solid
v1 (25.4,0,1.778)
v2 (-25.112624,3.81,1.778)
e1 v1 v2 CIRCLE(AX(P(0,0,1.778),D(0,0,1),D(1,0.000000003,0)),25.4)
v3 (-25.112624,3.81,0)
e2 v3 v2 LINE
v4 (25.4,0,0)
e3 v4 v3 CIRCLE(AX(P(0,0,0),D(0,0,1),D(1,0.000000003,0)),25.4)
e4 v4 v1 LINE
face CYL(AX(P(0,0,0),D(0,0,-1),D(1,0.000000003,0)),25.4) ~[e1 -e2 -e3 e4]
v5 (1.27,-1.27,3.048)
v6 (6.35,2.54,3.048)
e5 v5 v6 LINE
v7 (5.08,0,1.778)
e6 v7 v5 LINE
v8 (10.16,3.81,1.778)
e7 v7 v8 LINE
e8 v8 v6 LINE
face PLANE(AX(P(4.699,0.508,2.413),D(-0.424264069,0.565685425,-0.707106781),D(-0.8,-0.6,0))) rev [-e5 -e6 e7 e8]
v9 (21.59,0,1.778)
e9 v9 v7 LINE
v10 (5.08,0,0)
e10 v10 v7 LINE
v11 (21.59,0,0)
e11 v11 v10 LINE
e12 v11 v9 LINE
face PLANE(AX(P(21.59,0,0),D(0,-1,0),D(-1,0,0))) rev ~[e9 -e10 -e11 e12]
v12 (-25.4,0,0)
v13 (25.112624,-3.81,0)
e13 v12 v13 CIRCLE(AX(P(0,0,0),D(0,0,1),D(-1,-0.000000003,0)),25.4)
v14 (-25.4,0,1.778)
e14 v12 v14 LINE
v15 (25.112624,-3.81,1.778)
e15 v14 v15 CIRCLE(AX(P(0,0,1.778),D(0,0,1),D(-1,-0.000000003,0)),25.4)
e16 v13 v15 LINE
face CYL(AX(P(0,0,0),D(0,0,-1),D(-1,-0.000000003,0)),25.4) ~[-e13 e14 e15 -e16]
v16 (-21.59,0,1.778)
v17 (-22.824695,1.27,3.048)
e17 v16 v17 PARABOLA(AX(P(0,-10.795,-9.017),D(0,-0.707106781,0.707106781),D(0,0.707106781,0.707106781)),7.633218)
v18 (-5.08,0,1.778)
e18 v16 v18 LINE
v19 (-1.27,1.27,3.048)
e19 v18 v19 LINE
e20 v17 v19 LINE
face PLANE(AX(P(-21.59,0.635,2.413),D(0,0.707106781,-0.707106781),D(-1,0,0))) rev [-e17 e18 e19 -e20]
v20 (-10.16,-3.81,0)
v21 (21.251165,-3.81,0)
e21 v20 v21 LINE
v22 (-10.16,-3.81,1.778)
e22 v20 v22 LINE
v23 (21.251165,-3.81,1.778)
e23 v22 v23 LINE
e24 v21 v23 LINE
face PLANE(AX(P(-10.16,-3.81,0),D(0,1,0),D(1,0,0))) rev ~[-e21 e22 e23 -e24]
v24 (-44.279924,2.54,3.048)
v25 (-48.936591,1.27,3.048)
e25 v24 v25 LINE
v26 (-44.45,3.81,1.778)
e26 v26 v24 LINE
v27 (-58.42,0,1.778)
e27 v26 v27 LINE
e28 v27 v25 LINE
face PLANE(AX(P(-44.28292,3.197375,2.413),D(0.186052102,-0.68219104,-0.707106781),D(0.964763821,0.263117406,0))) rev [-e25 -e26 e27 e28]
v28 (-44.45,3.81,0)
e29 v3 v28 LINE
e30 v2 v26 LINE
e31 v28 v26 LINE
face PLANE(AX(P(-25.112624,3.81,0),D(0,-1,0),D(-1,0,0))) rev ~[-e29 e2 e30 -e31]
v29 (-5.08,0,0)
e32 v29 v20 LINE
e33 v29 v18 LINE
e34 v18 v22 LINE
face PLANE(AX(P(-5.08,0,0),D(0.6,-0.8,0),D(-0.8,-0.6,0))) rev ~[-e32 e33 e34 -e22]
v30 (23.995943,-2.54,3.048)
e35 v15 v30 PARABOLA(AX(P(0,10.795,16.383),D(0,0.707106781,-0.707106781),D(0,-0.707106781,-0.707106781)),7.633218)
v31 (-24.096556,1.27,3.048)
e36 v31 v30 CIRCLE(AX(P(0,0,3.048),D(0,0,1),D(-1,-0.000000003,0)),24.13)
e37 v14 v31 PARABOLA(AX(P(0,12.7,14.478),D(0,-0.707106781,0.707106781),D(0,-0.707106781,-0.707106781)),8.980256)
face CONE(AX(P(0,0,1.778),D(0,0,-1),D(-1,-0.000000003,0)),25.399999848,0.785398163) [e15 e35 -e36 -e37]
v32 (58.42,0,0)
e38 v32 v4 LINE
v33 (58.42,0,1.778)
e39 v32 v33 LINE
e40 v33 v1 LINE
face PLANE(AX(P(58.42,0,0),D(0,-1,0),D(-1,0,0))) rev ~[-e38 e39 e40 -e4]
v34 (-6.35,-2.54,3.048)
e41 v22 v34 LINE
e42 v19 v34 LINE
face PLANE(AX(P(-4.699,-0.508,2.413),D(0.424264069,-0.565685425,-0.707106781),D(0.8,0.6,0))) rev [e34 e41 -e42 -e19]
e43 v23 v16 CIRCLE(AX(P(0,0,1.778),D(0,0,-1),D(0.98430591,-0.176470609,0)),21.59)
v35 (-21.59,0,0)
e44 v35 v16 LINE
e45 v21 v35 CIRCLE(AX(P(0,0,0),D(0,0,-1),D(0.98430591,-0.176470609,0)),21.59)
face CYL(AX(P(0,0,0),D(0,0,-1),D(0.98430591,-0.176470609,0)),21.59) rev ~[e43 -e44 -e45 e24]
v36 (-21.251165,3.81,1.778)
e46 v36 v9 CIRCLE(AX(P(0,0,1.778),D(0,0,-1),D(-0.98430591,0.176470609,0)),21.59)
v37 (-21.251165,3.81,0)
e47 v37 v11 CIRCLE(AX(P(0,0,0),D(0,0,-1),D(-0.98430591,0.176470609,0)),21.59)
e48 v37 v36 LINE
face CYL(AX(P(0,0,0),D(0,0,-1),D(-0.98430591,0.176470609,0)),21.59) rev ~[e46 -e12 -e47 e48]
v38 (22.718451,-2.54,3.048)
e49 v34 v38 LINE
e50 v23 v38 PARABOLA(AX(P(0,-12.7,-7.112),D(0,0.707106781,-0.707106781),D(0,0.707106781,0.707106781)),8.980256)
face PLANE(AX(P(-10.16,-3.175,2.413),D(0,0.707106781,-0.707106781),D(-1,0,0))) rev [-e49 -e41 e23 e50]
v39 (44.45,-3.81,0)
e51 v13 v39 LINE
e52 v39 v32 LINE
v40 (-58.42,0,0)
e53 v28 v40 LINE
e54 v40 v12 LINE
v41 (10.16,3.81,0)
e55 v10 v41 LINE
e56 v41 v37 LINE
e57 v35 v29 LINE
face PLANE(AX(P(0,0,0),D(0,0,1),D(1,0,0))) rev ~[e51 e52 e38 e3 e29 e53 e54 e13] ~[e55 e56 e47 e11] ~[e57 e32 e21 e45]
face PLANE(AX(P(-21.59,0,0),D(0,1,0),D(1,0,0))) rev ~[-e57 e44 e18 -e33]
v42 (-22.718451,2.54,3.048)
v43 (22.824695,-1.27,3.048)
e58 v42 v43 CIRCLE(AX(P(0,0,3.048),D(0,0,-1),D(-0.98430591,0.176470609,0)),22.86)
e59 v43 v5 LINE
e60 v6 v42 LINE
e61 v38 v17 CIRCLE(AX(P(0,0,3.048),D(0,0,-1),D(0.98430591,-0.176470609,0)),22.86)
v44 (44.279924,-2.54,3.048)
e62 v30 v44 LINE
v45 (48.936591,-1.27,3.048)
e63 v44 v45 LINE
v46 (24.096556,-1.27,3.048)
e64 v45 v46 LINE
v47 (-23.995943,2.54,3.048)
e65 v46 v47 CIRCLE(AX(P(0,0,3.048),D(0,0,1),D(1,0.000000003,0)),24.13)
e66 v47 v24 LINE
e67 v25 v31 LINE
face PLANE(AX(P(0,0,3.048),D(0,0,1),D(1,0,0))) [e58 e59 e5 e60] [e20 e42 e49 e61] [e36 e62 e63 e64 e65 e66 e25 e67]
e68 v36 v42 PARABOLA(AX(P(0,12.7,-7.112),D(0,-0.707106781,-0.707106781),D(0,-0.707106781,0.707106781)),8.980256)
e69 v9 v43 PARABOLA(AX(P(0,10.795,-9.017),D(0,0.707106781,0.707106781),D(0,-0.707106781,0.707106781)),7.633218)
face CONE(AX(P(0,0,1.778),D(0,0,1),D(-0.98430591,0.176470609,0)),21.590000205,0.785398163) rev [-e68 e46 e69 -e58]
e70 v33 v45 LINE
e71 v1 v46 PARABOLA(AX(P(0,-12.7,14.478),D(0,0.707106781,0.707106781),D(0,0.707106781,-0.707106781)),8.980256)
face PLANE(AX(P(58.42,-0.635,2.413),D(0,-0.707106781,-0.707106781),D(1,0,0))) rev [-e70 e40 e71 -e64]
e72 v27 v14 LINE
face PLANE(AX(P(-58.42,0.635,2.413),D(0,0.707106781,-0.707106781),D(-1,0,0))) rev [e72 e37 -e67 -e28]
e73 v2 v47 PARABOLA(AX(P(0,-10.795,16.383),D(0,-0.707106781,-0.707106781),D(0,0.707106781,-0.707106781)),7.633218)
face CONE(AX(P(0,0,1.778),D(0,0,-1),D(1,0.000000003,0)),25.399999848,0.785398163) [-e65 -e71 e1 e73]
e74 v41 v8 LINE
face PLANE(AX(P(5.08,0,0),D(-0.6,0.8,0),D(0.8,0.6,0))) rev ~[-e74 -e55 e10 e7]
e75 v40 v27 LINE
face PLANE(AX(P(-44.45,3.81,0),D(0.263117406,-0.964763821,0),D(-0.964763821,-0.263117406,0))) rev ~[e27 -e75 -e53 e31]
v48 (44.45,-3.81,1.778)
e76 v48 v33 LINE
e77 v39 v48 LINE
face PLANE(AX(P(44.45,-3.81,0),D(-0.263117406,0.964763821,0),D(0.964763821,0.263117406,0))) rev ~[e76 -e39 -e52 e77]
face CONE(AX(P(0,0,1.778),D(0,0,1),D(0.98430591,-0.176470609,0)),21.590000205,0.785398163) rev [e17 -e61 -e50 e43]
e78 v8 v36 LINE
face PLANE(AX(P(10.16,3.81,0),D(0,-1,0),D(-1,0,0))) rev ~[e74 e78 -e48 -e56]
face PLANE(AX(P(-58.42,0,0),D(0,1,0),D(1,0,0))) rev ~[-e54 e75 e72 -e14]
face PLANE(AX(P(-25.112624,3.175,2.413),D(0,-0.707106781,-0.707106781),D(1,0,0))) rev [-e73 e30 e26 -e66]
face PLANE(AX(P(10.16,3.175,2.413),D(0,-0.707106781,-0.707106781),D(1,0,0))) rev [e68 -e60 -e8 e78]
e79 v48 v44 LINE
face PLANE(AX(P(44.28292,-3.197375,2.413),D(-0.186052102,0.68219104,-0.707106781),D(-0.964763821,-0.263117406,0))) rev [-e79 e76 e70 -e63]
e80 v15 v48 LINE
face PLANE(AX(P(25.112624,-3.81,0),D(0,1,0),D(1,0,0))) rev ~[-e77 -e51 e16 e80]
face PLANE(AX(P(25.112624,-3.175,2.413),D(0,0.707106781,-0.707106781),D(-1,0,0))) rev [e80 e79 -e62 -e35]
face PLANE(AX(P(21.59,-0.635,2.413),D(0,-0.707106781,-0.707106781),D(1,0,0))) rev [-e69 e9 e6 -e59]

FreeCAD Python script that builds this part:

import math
import FreeCAD as App
import Part
import Sketcher
Q = App.Units.Quantity


def edges_at(feature, points):
    """Names of the edges that pass closest to the given points."""
    edges = feature.Shape.Edges
    near = lambda p: min(range(len(edges)), key=lambda i: edges[i].distToShape(Part.Vertex(*p))[0])
    return sorted({f"Edge{near(p) + 1}" for p in points})

doc = App.newDocument("Part")
body = doc.addObject("PartDesign::Body", "Body")

# Sketch on XY plane
sketch1 = body.newObject("Sketcher::SketchObject", "Sketch")
sketch1.AttachmentSupport = (doc.getObject("XY_Plane"), [""])
sketch1.MapMode = "FlatFace"
sketch1.addGeometry(Part.LineSegment(App.Vector(-25.112624, 3.81, 0), App.Vector(-44.45, 3.81, 0)), False)
sketch1.addGeometry(Part.LineSegment(App.Vector(-44.45, 3.81, 0), App.Vector(-58.42, 0, 0)), False)
sketch1.addGeometry(Part.LineSegment(App.Vector(-58.42, 0, 0), App.Vector(-25.4, 0, 0)), False)
sketch1.addGeometry(Part.ArcOfCircle(Part.Circle(App.Vector(0, 0, 0), App.Vector(0, 0, 1), 25.4), math.radians(-180), math.radians(-8.626927)), False)
sketch1.addGeometry(Part.LineSegment(App.Vector(25.112624, -3.81, 0), App.Vector(44.45, -3.81, 0)), False)
sketch1.addGeometry(Part.LineSegment(App.Vector(44.45, -3.81, 0), App.Vector(58.42, 0, 0)), False)
sketch1.addGeometry(Part.LineSegment(App.Vector(58.42, 0, 0), App.Vector(25.4, 0, 0)), False)
sketch1.addGeometry(Part.ArcOfCircle(Part.Circle(App.Vector(0, 0, 0), App.Vector(0, 0, 1), 25.4), math.radians(0), math.radians(171.373073)), False)
sketch1.addGeometry(Part.LineSegment(App.Vector(-21.59, 0, 0), App.Vector(-5.08, 0, 0)), False)
sketch1.addGeometry(Part.LineSegment(App.Vector(-5.08, 0, 0), App.Vector(-10.16, -3.81, 0)), False)
sketch1.addGeometry(Part.LineSegment(App.Vector(-10.16, -3.81, 0), App.Vector(21.251165, -3.81, 0)), False)
sketch1.addGeometry(Part.ArcOfCircle(Part.Circle(App.Vector(0, 0, 0), App.Vector(0, 0, 1), 21.59), math.radians(-179.999999), math.radians(-10.16425)), False)
sketch1.addGeometry(Part.LineSegment(App.Vector(21.59, 0, 0), App.Vector(5.08, 0, 0)), False)
sketch1.addGeometry(Part.LineSegment(App.Vector(5.08, 0, 0), App.Vector(10.16, 3.81, 0)), False)
sketch1.addGeometry(Part.LineSegment(App.Vector(10.16, 3.81, 0), App.Vector(-21.251165, 3.81, 0)), False)
sketch1.addGeometry(Part.ArcOfCircle(Part.Circle(App.Vector(0, 0, 0), App.Vector(0, 0, 1), 21.59), math.radians(0.000001), math.radians(169.83575)), False)
sketch1.addConstraint(Sketcher.Constraint("Coincident", 0, 2, 1, 1))
sketch1.addConstraint(Sketcher.Constraint("Coincident", 1, 2, 2, 1))
sketch1.addConstraint(Sketcher.Constraint("Coincident", 2, 2, 3, 1))
sketch1.addConstraint(Sketcher.Constraint("Coincident", 3, 2, 4, 1))
sketch1.addConstraint(Sketcher.Constraint("Coincident", 4, 2, 5, 1))
sketch1.addConstraint(Sketcher.Constraint("Coincident", 5, 2, 6, 1))
sketch1.addConstraint(Sketcher.Constraint("Coincident", 6, 2, 7, 1))
sketch1.addConstraint(Sketcher.Constraint("Coincident", 7, 2, 0, 1))
sketch1.addConstraint(Sketcher.Constraint("Coincident", 8, 2, 9, 1))
sketch1.addConstraint(Sketcher.Constraint("Coincident", 9, 2, 10, 1))
sketch1.addConstraint(Sketcher.Constraint("Coincident", 10, 2, 11, 2))
sketch1.addConstraint(Sketcher.Constraint("Coincident", 11, 1, 8, 1))
sketch1.addConstraint(Sketcher.Constraint("Coincident", 12, 2, 13, 1))
sketch1.addConstraint(Sketcher.Constraint("Coincident", 13, 2, 14, 1))
sketch1.addConstraint(Sketcher.Constraint("Coincident", 14, 2, 15, 2))
sketch1.addConstraint(Sketcher.Constraint("Coincident", 15, 1, 12, 1))
sketch1.addConstraint(Sketcher.Constraint("Horizontal", 0))
sketch1.addConstraint(Sketcher.Constraint("Horizontal", 2))
sketch1.addConstraint(Sketcher.Constraint("Horizontal", 4))
sketch1.addConstraint(Sketcher.Constraint("Horizontal", 6))
sketch1.addConstraint(Sketcher.Constraint("Horizontal", 8))
sketch1.addConstraint(Sketcher.Constraint("Horizontal", 10))
sketch1.addConstraint(Sketcher.Constraint("Horizontal", 12))
sketch1.addConstraint(Sketcher.Constraint("Horizontal", 14))
sketch1.addConstraint(Sketcher.Constraint("Coincident", 3, 3, -1, 1))
sketch1.addConstraint(Sketcher.Constraint("Coincident", 7, 3, -1, 1))
sketch1.addConstraint(Sketcher.Constraint("Coincident", 11, 3, -1, 1))
sketch1.addConstraint(Sketcher.Constraint("Coincident", 15, 3, -1, 1))
sketch1.addConstraint(Sketcher.Constraint("Equal", 3, 7))
sketch1.addConstraint(Sketcher.Constraint("Equal", 11, 15))
sketch1.addConstraint(Sketcher.Constraint("Symmetric", 0, 2, 4, 2, -1, 1))
sketch1.addConstraint(Sketcher.Constraint("Symmetric", 1, 2, 5, 2, -1, 1))
sketch1.addConstraint(Sketcher.Constraint("Symmetric", 8, 2, 12, 2, -1, 1))
sketch1.addConstraint(Sketcher.Constraint("Symmetric", 9, 2, 13, 2, -1, 1))
sketch1.addConstraint(Sketcher.Constraint("PointOnObject", 1, 2, -1))
sketch1.addConstraint(Sketcher.Constraint("PointOnObject", 8, 2, -1))
sketch1.addConstraint(Sketcher.Constraint("Horizontal", 4, 2, 9, 2))
sketch1.addConstraint(Sketcher.Constraint("Radius", 3, Q("1 in")))
sketch1.addConstraint(Sketcher.Constraint("Radius", 11, Q("0.85 in")))
sketch1.addConstraint(Sketcher.Constraint("DistanceX", 2, 1, 2, 2, Q("1.3 in")))
sketch1.addConstraint(Sketcher.Constraint("DistanceX", 8, 1, 8, 2, Q("0.65 in")))
sketch1.addConstraint(Sketcher.Constraint("DistanceX", 9, 2, -1, 1, Q("0.4 in")))
sketch1.addConstraint(Sketcher.Constraint("DistanceY", 9, 2, 14, 2, Q("0.3 in")))
sketch1.addConstraint(Sketcher.Constraint("DistanceX", 0, 2, -1, 1, Q("1.75 in")))
pad1 = body.newObject("PartDesign::Pad", "Pad")
pad1.Profile = sketch1
pad1.Length = Q("0.12 in")
doc.recompute()

chamfer = body.newObject("PartDesign::Chamfer", "Chamfer")
chamfer.Base = (pad1, edges_at(pad1, [
    (-51.435, 1.905, 3.048),
    (-34.781, 3.81, 3.048),
    (-41.91, 0, 3.048),
    (-1.91, -25.328, 3.048),
    (-1.913, -21.505, 3.048),
    (5.546, -3.81, 3.048),
    (13.335, 0, 3.048),
    (7.62, 1.905, 3.048),
    (-5.546, 3.81, 3.048),
    (-13.335, 0, 3.048),
    (-7.62, -1.905, 3.048),
    (1.913, 21.505, 3.048),
    (1.91, 25.328, 3.048),
    (41.91, 0, 3.048),
    (34.781, -3.81, 3.048),
    (51.435, -1.905, 3.048),
]))
chamfer.Size = Q("0.05 in")

doc.recompute()
